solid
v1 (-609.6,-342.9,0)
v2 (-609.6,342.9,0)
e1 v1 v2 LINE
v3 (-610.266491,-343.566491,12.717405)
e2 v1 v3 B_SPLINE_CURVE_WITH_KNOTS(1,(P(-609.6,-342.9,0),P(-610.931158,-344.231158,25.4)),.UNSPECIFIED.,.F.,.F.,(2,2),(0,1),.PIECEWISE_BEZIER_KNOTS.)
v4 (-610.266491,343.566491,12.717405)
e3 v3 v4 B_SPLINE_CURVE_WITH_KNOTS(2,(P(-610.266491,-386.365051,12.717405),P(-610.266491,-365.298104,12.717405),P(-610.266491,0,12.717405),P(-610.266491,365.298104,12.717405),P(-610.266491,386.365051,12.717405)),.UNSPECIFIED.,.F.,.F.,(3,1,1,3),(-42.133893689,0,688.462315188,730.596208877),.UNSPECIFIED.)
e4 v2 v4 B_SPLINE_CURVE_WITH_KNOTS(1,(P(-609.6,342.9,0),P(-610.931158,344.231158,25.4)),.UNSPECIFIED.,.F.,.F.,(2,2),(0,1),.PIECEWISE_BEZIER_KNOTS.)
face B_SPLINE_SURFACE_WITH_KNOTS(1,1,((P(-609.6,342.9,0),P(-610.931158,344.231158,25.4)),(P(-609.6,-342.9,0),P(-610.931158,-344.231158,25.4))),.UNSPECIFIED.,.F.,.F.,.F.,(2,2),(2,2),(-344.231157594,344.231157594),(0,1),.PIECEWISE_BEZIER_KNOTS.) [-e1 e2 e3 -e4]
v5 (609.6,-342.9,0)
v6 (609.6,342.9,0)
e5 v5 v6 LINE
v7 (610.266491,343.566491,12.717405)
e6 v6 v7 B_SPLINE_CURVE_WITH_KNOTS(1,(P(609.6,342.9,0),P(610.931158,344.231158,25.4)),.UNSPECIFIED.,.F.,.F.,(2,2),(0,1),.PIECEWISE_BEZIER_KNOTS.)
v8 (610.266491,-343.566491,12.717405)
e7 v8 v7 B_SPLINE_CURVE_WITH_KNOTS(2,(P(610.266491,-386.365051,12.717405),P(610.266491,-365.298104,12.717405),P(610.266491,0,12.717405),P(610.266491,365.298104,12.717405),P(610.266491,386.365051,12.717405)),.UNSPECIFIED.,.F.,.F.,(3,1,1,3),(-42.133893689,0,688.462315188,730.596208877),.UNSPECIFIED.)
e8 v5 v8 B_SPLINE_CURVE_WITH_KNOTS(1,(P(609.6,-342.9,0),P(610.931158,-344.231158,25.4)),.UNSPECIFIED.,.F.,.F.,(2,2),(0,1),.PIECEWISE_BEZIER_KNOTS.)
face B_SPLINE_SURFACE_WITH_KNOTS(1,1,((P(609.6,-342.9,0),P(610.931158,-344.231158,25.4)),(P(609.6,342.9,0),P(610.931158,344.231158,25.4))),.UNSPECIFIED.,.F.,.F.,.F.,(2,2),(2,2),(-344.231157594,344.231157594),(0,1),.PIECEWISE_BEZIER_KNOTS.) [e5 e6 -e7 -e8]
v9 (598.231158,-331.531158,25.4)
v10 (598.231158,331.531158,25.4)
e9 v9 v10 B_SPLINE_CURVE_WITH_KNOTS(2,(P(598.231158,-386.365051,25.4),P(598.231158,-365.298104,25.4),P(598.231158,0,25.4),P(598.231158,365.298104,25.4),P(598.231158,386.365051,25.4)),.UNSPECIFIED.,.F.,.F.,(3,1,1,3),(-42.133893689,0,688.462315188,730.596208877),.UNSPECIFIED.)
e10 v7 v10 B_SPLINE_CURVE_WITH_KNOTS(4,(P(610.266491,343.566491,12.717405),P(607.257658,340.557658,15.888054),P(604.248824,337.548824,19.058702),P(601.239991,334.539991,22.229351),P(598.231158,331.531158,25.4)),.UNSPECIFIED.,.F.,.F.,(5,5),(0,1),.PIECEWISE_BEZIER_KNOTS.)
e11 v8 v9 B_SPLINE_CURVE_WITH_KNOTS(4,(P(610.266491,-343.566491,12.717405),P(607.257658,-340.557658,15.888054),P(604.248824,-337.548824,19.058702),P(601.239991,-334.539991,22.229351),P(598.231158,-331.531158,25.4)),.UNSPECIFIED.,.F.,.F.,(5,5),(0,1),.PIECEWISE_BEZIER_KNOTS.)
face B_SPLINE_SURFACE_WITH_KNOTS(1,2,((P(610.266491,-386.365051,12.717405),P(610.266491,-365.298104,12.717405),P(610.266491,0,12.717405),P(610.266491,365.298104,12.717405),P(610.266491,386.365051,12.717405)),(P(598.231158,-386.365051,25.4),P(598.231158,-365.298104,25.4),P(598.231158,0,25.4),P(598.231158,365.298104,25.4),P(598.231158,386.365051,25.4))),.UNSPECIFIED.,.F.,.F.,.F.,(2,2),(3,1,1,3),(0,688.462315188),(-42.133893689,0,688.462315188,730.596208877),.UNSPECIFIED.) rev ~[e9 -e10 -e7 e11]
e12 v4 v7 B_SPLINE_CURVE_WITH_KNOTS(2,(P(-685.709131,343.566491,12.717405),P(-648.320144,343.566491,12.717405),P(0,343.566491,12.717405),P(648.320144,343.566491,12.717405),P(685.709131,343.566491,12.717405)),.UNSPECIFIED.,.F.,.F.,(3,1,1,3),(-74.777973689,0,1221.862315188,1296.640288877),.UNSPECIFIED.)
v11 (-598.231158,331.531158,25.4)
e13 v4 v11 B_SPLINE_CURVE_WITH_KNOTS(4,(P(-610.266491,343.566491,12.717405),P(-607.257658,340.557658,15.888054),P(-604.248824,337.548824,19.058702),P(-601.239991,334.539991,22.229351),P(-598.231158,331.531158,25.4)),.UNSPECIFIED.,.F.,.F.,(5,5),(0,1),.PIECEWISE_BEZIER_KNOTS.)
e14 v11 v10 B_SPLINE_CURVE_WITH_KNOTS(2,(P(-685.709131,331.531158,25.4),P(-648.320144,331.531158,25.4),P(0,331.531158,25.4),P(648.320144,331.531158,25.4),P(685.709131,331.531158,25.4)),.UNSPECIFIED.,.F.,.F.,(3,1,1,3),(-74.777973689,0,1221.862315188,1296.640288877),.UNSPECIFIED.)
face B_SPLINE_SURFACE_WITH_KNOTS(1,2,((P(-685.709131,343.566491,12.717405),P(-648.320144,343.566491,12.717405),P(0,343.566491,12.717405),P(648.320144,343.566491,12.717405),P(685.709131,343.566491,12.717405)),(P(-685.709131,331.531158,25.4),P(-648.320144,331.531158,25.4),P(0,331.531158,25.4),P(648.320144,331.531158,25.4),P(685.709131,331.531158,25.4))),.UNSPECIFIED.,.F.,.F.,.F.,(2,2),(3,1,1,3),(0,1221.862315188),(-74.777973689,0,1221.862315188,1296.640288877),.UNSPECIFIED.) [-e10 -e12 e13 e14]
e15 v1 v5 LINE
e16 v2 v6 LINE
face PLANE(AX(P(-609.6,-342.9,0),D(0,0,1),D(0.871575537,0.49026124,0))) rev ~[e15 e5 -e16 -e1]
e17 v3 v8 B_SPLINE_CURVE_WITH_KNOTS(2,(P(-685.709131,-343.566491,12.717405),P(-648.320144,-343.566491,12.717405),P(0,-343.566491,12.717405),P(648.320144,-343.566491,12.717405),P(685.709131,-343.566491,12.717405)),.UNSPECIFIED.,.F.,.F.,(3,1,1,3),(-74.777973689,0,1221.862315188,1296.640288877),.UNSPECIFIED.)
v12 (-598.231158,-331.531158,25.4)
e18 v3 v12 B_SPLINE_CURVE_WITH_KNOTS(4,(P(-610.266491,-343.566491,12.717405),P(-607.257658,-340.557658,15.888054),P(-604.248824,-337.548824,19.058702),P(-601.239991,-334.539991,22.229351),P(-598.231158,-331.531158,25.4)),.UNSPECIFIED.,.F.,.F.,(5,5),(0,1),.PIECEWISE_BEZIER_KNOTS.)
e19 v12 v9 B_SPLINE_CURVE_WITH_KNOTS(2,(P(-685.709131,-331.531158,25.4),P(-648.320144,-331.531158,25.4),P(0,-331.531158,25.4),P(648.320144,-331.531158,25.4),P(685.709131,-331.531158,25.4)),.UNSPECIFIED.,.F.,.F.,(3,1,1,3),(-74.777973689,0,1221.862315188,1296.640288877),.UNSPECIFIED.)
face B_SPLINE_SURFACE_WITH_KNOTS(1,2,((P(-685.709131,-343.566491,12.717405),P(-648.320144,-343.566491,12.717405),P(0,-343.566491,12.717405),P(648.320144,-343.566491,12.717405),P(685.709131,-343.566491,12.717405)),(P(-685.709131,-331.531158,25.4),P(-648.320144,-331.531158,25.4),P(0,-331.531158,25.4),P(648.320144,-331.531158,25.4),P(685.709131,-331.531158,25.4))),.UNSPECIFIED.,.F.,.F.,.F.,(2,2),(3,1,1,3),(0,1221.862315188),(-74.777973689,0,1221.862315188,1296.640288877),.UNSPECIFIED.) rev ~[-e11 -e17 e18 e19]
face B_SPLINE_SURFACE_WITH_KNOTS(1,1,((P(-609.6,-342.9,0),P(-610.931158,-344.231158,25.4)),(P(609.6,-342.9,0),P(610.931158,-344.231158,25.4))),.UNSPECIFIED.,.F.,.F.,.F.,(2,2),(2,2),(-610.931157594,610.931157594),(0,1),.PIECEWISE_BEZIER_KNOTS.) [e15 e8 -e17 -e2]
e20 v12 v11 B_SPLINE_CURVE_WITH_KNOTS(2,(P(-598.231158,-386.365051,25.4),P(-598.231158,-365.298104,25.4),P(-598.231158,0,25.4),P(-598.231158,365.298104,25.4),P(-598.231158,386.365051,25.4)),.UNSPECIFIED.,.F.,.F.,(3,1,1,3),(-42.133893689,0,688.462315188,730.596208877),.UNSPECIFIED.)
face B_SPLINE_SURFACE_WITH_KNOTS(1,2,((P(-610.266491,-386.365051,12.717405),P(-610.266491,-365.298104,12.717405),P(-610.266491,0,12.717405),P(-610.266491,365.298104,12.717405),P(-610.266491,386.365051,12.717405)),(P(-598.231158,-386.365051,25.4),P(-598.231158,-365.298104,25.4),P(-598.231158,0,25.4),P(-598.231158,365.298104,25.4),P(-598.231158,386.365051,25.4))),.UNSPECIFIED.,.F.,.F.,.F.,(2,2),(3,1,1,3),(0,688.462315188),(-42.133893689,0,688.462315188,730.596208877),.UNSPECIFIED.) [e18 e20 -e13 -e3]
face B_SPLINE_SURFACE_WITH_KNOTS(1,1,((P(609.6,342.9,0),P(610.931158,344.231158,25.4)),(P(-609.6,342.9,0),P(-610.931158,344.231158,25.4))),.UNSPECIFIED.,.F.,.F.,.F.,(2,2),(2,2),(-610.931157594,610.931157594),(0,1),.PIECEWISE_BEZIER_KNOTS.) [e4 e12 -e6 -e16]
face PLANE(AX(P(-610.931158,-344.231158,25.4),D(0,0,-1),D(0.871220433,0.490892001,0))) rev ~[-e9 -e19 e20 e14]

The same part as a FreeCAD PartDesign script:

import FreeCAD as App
import Part
import Sketcher

V = App.Vector
Q = App.Units.Quantity


def edges_at(feature, points):
    """Names of the edges that pass closest to the given points."""
    edges = feature.Shape.Edges
    near = lambda p: min(range(len(edges)), key=lambda i: edges[i].distToShape(Part.Vertex(*p))[0])
    return sorted({f"Edge{near(p) + 1}" for p in points})

doc = App.newDocument("Part")
body = doc.addObject("PartDesign::Body", "Body")

# Sketch on XY plane
sketch1 = doc.addObject("Sketcher::SketchObject", "Sketch")
body.addObject(sketch1)
sketch1.AttachmentSupport = (doc.XY_Plane, [""])
sketch1.MapMode = "FlatFace"
sketch1.addGeometry([
    Part.LineSegment(V(-610, 343, 0), V(-610, -343, 0)),
    Part.LineSegment(V(-610, -343, 0), V(610, -343, 0)),
    Part.LineSegment(V(610, -343, 0), V(610, 343, 0)),
    Part.LineSegment(V(610, 343, 0), V(-610, 343, 0)),
], False)
sketch1.addConstraint([
    Sketcher.Constraint("Coincident", 0, 2, 1, 1),
    Sketcher.Constraint("Coincident", 1, 2, 2, 1),
    Sketcher.Constraint("Coincident", 2, 2, 3, 1),
    Sketcher.Constraint("Coincident", 3, 2, 0, 1),
    Sketcher.Constraint("Vertical", 0),
    Sketcher.Constraint("Horizontal", 1),
    Sketcher.Constraint("Vertical", 2),
    Sketcher.Constraint("Horizontal", 3),
    Sketcher.Constraint("Symmetric", 0, 2, 2, 2, -1, 1),
    Sketcher.Constraint("DistanceX", 1, 1, 1, 2, Q("48 in")),
    Sketcher.Constraint("DistanceY", 0, 2, 0, 1, Q("27 in")),
])
pad1 = doc.addObject("PartDesign::Pad", "Pad")
body.addObject(pad1)
pad1.Profile = sketch1
pad1.Length = Q("1 in")
pad1.TaperAngle = 3
doc.recompute()

chamfer = doc.addObject("PartDesign::Chamfer", "Chamfer")
body.addObject(chamfer)
chamfer.Base = (pad1, edges_at(pad1, [
    (610.931, 0, 25.4),
    (0, 344.231, 25.4),
    (-610.931, 0, 25.4),
    (0, -344.231, 25.4),
]))
chamfer.Size = Q("0.5 in")

doc.recompute()
